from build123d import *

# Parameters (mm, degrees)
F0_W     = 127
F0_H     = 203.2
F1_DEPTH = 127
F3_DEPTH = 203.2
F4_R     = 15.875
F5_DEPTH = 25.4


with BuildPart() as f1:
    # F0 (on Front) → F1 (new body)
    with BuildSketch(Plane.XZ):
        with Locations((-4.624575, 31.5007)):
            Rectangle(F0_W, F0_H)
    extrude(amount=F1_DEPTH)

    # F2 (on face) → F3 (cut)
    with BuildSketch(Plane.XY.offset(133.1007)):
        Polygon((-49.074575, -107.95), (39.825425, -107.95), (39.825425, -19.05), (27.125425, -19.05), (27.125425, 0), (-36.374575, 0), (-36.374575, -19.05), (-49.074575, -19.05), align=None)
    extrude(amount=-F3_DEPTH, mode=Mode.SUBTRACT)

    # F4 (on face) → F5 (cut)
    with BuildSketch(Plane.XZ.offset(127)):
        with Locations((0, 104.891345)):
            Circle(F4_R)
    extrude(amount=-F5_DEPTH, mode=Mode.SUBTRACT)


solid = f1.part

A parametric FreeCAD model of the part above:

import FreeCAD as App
import Part
import Sketcher

V = App.Vector
Q = App.Units.Quantity

doc = App.newDocument("Part")
body = doc.addObject("PartDesign::Body", "Body")

sketch1 = body.newObject("Sketcher::SketchObject", "Sketch")
sketch1.AttachmentSupport = (doc.getObject("XZ_Plane"), [""])
sketch1.MapMode = "FlatFace"
sketch1.addGeometry(Part.LineSegment(V(-68, 133, 0), V(-68, -70, 0)), False)
sketch1.addGeometry(Part.LineSegment(V(-68, -70, 0), V(59, -70, 0)), False)
sketch1.addGeometry(Part.LineSegment(V(59, -70, 0), V(59, 133, 0)), False)
sketch1.addGeometry(Part.LineSegment(V(59, 133, 0), V(-68, 133, 0)), False)
sketch1.addConstraint(Sketcher.Constraint("Coincident", 0, 2, 1, 1))
sketch1.addConstraint(Sketcher.Constraint("Coincident", 1, 2, 2, 1))
sketch1.addConstraint(Sketcher.Constraint("Coincident", 2, 2, 3, 1))
sketch1.addConstraint(Sketcher.Constraint("Coincident", 3, 2, 0, 1))
sketch1.addConstraint(Sketcher.Constraint("Vertical", 0))
sketch1.addConstraint(Sketcher.Constraint("Horizontal", 1))
sketch1.addConstraint(Sketcher.Constraint("Vertical", 2))
sketch1.addConstraint(Sketcher.Constraint("Horizontal", 3))
sketch1.addConstraint(Sketcher.Constraint("DistanceX", 1, 1, 1, 2, Q("5 in")))
sketch1.addConstraint(Sketcher.Constraint("DistanceY", 0, 2, 0, 1, Q("8 in")))
sketch1.addConstraint(Sketcher.Constraint("DistanceY", 0, 2, -1, 1, 70.0993))
sketch1.addConstraint(Sketcher.Constraint("DistanceX", 0, 2, -1, 1, 68.124575))
pad1 = body.newObject("PartDesign::Pad", "Pad")
pad1.Profile = sketch1
pad1.Length = Q("5 in")

sketch2 = body.newObject("Sketcher::SketchObject", "Sketch001")
sketch2.AttachmentSupport = (doc.getObject("XY_Plane"), [""])
sketch2.MapMode = "FlatFace"
sketch2.AttachmentOffset = App.Placement(V(0, 0, 133.1007), App.Rotation())
sketch2.addGeometry(Part.LineSegment(V(-49, -108, 0), V(40, -108, 0)), False)
sketch2.addGeometry(Part.LineSegment(V(40, -108, 0), V(40, -19, 0)), False)
sketch2.addGeometry(Part.LineSegment(V(40, -19, 0), V(27, -19, 0)), False)
sketch2.addGeometry(Part.LineSegment(V(27, -19, 0), V(27, 0, 0)), False)
sketch2.addGeometry(Part.LineSegment(V(27, 0, 0), V(-36, 0, 0)), False)
sketch2.addGeometry(Part.LineSegment(V(-36, 0, 0), V(-36, -19, 0)), False)
sketch2.addGeometry(Part.LineSegment(V(-36, -19, 0), V(-49, -19, 0)), False)
sketch2.addGeometry(Part.LineSegment(V(-49, -19, 0), V(-49, -108, 0)), False)
sketch2.addConstraint(Sketcher.Constraint("Coincident", 0, 2, 1, 1))
sketch2.addConstraint(Sketcher.Constraint("Coincident", 1, 2, 2, 1))
sketch2.addConstraint(Sketcher.Constraint("Coincident", 2, 2, 3, 1))
sketch2.addConstraint(Sketcher.Constraint("Coincident", 3, 2, 4, 1))
sketch2.addConstraint(Sketcher.Constraint("Coincident", 4, 2, 5, 1))
sketch2.addConstraint(Sketcher.Constraint("Coincident", 5, 2, 6, 1))
sketch2.addConstraint(Sketcher.Constraint("Coincident", 6, 2, 7, 1))
sketch2.addConstraint(Sketcher.Constraint("Coincident", 7, 2, 0, 1))
sketch2.addConstraint(Sketcher.Constraint("Horizontal", 0))
sketch2.addConstraint(Sketcher.Constraint("Vertical", 1))
sketch2.addConstraint(Sketcher.Constraint("Horizontal", 2))
sketch2.addConstraint(Sketcher.Constraint("Vertical", 3))
sketch2.addConstraint(Sketcher.Constraint("Horizontal", 4))
sketch2.addConstraint(Sketcher.Constraint("Vertical", 5))
sketch2.addConstraint(Sketcher.Constraint("Horizontal", 6))
sketch2.addConstraint(Sketcher.Constraint("Vertical", 7))
sketch2.addConstraint(Sketcher.Constraint("PointOnObject", 3, 2, -1))
sketch2.addConstraint(Sketcher.Constraint("Horizontal", 2, 2, 5, 2))
sketch2.addConstraint(Sketcher.Constraint("Equal", 2, 6))
sketch2.addConstraint(Sketcher.Constraint("Equal", 0, 1))
sketch2.addConstraint(Sketcher.Constraint("DistanceX", 0, 1, 0, 2, Q("3.5 in")))
sketch2.addConstraint(Sketcher.Constraint("DistanceX", 2, 2, 2, 1, Q("0.5 in")))
sketch2.addConstraint(Sketcher.Constraint("DistanceY", 3, 1, 3, 2, Q("0.75 in")))
sketch2.addConstraint(Sketcher.Constraint("DistanceX", -1, 1, 0, 2, 39.825425))
pocket1 = body.newObject("PartDesign::Pocket", "Pocket")
pocket1.Profile = sketch2
pocket1.Length = Q("8 in")

sketch3 = body.newObject("Sketcher::SketchObject", "Sketch002")
sketch3.AttachmentSupport = (doc.getObject("XZ_Plane"), [""])
sketch3.MapMode = "FlatFace"
sketch3.AttachmentOffset = App.Placement(V(0, 0, 5 * 25.4), App.Rotation())
sketch3.addGeometry(Part.Circle(V(0, 105, 0), V(0, 0, 1), 16), False)
sketch3.addConstraint(Sketcher.Constraint("PointOnObject", 0, 3, -2))
sketch3.addConstraint(Sketcher.Constraint("Diameter", 0, Q("1.25 in")))
sketch3.addConstraint(Sketcher.Constraint("DistanceY", -1, 1, 0, 3, 104.891345))
pocket2 = body.newObject("PartDesign::Pocket", "Pocket001")
pocket2.Profile = sketch3
pocket2.Length = Q("1 in")

doc.recompute()
